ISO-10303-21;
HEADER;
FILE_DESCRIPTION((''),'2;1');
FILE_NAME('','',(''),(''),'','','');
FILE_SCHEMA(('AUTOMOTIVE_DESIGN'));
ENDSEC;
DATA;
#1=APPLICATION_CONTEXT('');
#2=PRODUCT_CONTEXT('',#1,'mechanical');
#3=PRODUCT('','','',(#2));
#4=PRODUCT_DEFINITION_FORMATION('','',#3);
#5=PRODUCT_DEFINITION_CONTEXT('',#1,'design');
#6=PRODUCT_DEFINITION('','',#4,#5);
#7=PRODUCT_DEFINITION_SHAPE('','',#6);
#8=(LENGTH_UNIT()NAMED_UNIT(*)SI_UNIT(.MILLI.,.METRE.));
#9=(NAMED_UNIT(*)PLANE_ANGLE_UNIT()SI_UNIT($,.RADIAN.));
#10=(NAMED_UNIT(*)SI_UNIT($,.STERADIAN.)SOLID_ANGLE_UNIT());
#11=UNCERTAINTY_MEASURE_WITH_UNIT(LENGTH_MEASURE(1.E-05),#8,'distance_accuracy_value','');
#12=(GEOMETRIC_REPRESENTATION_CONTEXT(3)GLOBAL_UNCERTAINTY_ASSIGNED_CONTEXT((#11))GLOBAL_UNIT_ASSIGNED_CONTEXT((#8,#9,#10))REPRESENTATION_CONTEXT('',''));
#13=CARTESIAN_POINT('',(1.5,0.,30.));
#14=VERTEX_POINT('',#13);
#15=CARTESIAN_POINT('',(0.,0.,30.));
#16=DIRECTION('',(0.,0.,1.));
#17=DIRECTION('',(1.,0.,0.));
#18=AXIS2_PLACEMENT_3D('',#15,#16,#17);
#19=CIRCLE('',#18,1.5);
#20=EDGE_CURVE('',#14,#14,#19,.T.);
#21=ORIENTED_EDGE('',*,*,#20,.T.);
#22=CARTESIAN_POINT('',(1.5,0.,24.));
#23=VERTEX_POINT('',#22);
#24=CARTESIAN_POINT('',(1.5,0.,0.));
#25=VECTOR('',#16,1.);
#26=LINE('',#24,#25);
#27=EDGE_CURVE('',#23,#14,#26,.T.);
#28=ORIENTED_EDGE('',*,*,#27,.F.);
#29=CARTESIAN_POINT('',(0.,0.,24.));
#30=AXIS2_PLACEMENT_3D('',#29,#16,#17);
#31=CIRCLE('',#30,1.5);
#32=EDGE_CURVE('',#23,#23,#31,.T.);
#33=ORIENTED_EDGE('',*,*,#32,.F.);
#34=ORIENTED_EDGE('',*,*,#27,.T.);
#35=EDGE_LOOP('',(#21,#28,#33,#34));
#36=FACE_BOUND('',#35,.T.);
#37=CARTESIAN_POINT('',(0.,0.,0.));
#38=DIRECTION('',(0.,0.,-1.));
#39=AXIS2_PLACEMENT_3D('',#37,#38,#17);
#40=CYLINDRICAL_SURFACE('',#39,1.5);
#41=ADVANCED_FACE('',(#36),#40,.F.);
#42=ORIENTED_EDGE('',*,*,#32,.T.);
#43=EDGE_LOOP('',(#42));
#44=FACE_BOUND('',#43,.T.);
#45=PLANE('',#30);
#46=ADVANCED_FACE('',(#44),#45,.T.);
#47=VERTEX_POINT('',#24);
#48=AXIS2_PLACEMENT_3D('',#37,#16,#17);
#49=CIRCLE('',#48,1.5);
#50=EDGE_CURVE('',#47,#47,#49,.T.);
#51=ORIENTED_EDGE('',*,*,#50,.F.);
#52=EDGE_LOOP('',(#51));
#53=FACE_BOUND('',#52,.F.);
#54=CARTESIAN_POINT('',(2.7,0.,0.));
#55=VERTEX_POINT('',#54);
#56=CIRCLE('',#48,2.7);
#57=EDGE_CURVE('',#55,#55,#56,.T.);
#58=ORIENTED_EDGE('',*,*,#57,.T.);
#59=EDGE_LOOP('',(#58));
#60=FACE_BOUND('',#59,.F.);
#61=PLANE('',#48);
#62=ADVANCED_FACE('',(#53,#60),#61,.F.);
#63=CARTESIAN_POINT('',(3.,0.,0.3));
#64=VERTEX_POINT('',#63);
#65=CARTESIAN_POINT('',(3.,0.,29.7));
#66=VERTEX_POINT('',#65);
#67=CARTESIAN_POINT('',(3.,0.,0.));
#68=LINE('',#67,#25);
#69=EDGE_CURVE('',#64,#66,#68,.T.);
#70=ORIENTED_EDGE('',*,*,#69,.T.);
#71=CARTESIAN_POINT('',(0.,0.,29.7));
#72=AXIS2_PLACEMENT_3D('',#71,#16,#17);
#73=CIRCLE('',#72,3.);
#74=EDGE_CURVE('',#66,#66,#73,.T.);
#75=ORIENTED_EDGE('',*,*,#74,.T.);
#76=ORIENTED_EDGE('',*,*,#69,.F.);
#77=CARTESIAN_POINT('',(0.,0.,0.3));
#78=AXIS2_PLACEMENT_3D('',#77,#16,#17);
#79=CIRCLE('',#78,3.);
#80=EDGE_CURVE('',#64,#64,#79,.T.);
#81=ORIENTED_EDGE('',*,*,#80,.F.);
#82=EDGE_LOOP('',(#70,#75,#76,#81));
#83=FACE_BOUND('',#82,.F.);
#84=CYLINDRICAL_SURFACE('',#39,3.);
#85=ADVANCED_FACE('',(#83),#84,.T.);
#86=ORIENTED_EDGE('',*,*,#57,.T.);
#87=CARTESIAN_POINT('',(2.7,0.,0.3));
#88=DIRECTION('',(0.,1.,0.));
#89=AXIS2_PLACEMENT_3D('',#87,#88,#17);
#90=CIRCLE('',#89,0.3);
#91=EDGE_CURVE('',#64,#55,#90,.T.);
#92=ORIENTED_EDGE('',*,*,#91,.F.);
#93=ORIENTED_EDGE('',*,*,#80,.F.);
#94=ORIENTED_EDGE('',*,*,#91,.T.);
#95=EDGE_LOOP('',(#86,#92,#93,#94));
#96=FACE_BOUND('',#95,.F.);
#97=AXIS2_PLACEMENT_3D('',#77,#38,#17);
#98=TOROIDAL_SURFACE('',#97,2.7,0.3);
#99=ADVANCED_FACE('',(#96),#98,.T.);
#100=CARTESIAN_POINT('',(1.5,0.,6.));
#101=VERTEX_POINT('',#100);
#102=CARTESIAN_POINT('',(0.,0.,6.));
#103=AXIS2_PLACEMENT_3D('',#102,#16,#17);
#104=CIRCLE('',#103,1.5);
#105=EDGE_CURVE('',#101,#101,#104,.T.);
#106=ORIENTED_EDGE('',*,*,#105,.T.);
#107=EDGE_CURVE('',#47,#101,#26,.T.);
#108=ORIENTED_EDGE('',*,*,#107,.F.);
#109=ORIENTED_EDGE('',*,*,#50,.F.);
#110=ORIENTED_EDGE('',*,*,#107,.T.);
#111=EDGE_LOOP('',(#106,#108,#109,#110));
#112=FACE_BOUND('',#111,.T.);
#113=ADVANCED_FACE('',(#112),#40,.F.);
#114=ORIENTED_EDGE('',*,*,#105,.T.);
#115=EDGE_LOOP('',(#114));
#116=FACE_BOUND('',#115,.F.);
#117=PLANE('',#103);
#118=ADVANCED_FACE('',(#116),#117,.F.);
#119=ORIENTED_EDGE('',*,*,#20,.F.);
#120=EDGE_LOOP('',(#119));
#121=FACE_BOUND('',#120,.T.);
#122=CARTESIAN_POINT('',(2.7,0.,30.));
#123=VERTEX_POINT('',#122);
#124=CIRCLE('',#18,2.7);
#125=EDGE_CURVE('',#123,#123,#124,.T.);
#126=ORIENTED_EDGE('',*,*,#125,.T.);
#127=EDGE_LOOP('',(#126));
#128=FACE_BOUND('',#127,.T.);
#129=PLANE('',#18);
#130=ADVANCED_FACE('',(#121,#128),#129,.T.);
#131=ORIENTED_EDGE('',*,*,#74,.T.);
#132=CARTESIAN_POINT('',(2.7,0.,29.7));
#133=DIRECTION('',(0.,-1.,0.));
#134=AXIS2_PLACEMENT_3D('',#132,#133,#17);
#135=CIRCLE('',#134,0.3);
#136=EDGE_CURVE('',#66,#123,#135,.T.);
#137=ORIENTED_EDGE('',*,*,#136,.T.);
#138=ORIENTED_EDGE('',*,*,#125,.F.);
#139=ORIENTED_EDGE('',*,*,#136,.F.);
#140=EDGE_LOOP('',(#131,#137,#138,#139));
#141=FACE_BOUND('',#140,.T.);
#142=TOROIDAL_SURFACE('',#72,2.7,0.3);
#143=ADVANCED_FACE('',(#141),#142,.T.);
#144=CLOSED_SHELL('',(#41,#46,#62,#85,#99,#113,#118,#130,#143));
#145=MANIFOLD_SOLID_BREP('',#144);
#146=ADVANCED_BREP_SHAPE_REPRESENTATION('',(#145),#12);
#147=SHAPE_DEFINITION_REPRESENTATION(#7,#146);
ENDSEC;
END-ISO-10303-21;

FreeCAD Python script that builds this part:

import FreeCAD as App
import Part
import Sketcher

V = App.Vector


def edges_at(feature, points):
    """Names of the edges that pass closest to the given points."""
    edges = feature.Shape.Edges
    near = lambda p: min(range(len(edges)), key=lambda i: edges[i].distToShape(Part.Vertex(*p))[0])
    return sorted({f"Edge{near(p) + 1}" for p in points})

doc = App.newDocument("Part")
body = doc.addObject("PartDesign::Body", "Body")

# Sketch on XY plane
sketch1 = doc.addObject("Sketcher::SketchObject", "Sketch")
body.addObject(sketch1)
sketch1.AttachmentSupport = (doc.XY_Plane, [""])
sketch1.MapMode = "FlatFace"
sketch1.addGeometry([
    Part.Circle(V(0, 0, 0), V(0, 0, 1), 3),
    Part.Circle(V(0, 0, 0), V(0, 0, 1), 1.5),
], False)
sketch1.addConstraint([
    Sketcher.Constraint("Coincident", 0, 3, -1, 1),
    Sketcher.Constraint("Coincident", 1, 3, -1, 1),
    Sketcher.Constraint("Diameter", 0, 6.0),
    Sketcher.Constraint("Diameter", 1, 3.0),
])
pad1 = doc.addObject("PartDesign::Pad", "Pad")
body.addObject(pad1)
pad1.Profile = sketch1
pad1.Length = 30
doc.recompute()

fillet = doc.addObject("PartDesign::Fillet", "Fillet")
body.addObject(fillet)
fillet.Base = (pad1, edges_at(pad1, [(-3, 0, 30), (-3, 0, 0)]))
fillet.Radius = 0.3

# Sketch on XY plane
sketch2 = doc.addObject("Sketcher::SketchObject", "Sketch001")
body.addObject(sketch2)
sketch2.AttachmentSupport = (doc.XY_Plane, [""])
sketch2.MapMode = "FlatFace"
sketch2.addGeometry(Part.Circle(V(0, 0, 0), V(0, 0, 1), 1.5), False)
sketch2.addConstraint([
    Sketcher.Constraint("Coincident", 0, 3, -1, 1),
    Sketcher.Constraint("Diameter", 0, 3.0),
])
pad2 = doc.addObject("PartDesign::Pad", "Pad001")
body.addObject(pad2)
pad2.Profile = sketch2
pad2.Length = 24

# Sketch on XY plane
sketch3 = doc.addObject("Sketcher::SketchObject", "Sketch002")
body.addObject(sketch3)
sketch3.AttachmentSupport = (doc.XY_Plane, [""])
sketch3.MapMode = "FlatFace"
sketch3.addGeometry(Part.Circle(V(0, 0, 0), V(0, 0, 1), 1.5), False)
sketch3.addConstraint([
    Sketcher.Constraint("Coincident", 0, 3, -1, 1),
    Sketcher.Constraint("Diameter", 0, 3.0),
])
pocket1 = doc.addObject("PartDesign::Pocket", "Pocket")
body.addObject(pocket1)
pocket1.Profile = sketch3
pocket1.Length = 6
pocket1.Reversed = True

doc.recompute()
